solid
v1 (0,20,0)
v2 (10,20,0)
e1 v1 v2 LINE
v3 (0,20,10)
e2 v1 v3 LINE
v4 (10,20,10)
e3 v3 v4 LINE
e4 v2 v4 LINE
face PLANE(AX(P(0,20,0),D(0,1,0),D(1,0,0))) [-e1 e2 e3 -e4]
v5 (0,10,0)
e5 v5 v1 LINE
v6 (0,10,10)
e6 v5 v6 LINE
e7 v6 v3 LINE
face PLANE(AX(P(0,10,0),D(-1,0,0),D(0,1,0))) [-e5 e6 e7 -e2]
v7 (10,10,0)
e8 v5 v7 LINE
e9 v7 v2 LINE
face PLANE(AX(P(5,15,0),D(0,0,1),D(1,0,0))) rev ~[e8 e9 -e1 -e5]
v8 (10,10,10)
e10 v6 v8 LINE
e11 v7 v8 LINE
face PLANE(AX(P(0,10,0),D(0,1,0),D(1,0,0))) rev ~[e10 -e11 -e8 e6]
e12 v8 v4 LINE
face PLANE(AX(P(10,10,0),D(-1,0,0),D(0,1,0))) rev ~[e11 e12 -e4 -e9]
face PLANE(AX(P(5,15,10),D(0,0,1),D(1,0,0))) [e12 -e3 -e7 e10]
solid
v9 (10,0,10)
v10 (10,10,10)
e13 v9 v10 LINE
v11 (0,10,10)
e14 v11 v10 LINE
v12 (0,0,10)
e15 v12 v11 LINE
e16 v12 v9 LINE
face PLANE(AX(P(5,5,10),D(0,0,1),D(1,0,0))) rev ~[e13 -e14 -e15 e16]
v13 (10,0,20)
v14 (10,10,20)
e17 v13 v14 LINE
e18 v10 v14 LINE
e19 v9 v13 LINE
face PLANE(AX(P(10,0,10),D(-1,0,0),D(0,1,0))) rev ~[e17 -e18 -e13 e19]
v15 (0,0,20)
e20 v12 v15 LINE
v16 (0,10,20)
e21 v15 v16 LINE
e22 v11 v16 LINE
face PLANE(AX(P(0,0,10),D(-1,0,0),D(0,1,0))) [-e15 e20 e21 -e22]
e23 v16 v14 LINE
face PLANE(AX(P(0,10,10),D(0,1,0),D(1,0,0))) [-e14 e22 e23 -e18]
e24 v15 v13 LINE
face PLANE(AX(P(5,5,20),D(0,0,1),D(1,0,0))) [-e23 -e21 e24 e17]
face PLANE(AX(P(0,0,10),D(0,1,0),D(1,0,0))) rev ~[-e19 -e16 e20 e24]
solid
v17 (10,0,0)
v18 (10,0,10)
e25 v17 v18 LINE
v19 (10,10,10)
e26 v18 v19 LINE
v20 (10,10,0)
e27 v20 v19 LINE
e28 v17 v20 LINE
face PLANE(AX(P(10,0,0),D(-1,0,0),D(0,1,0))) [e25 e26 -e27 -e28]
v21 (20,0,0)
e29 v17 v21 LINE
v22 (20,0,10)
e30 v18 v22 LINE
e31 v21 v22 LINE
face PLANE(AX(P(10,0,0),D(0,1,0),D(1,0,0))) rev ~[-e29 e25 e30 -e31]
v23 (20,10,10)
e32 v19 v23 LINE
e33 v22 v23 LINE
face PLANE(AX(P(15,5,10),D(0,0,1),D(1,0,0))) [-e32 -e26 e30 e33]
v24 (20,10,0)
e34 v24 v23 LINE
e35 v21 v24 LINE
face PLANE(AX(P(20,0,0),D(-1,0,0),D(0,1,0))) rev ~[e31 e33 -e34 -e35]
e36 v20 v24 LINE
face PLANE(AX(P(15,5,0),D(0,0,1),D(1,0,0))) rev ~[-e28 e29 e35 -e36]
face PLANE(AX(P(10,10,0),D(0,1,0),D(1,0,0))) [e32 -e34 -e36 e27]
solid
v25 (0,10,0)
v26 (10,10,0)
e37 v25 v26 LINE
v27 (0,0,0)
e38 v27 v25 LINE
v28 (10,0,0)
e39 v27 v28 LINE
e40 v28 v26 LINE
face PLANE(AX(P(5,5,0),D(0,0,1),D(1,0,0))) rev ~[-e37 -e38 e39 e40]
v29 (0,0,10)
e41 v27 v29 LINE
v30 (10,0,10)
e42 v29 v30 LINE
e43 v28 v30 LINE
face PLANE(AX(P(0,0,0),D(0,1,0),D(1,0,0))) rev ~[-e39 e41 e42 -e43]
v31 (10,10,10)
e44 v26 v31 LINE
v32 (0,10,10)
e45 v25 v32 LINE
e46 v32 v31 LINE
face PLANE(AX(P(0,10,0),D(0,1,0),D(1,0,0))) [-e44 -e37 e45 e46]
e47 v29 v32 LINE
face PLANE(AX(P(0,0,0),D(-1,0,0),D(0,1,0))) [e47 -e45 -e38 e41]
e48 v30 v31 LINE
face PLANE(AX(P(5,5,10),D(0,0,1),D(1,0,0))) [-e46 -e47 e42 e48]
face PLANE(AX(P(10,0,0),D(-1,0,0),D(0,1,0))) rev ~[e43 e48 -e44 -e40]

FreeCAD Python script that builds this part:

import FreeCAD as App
import Part
import Sketcher
Q = App.Units.Quantity


def add_polygon(sketch, points):
    """Adds a closed chain of lines whose ends are joined by coincident constraints."""
    first, n = sketch.GeometryCount, len(points)
    for a, b in zip(points, points[1:] + points[:1]):
        sketch.addGeometry(Part.LineSegment(App.Vector(*a, 0), App.Vector(*b, 0)), False)
    for i in range(n):
        sketch.addConstraint(Sketcher.Constraint("Coincident", first + i, 2, first + (i + 1) % n, 1))

doc = App.newDocument("Part")
body = doc.addObject("PartDesign::Body", "Body")

sketch1 = body.newObject("Sketcher::SketchObject", "Sketch")
sketch1.AttachmentSupport = (doc.getObject("XY_Plane"), [""])
sketch1.MapMode = "FlatFace"
add_polygon(sketch1, [(0, 10), (0, 0), (10, 0), (10, 10)])
sketch1.addConstraint([
    Sketcher.Constraint("Vertical", 0),
    Sketcher.Constraint("Horizontal", 1),
    Sketcher.Constraint("Vertical", 2),
    Sketcher.Constraint("Horizontal", 3),
    Sketcher.Constraint("Coincident", 0, 2, -1, 1),
    Sketcher.Constraint("Equal", 3, 0),
    Sketcher.Constraint("DistanceX", 1, 1, 1, 2, Q("10 mm")),
])
pad1 = body.newObject("PartDesign::Pad", "Pad")
pad1.Profile = sketch1
pad1.Length = 10
body2 = doc.addObject("PartDesign::Body", "Body001")

sketch2 = body2.newObject("Sketcher::SketchObject", "Sketch001")
sketch2.AttachmentSupport = (doc.getObject("XY_Plane001"), [""])
sketch2.MapMode = "FlatFace"
add_polygon(sketch2, [(10, 10), (10, 0), (20, 0), (20, 10)])
sketch2.addConstraint([
    Sketcher.Constraint("Vertical", 0),
    Sketcher.Constraint("Horizontal", 1),
    Sketcher.Constraint("Vertical", 2),
    Sketcher.Constraint("Horizontal", 3),
    Sketcher.Constraint("PointOnObject", 0, 2, -1),
    Sketcher.Constraint("Equal", 3, 0),
    Sketcher.Constraint("DistanceX", 1, 1, 1, 2, Q("10 mm")),
    Sketcher.Constraint("DistanceX", -1, 1, 0, 2, Q("10 mm")),
])
pad2 = body2.newObject("PartDesign::Pad", "Pad001")
pad2.Profile = sketch2
pad2.Length = 10
body3 = doc.addObject("PartDesign::Body", "Body002")

sketch3 = body3.newObject("Sketcher::SketchObject", "Sketch002")
sketch3.AttachmentSupport = (doc.getObject("XY_Plane002"), [""])
sketch3.MapMode = "FlatFace"
add_polygon(sketch3, [(0, 20), (0, 10), (10, 10), (10, 20)])
sketch3.addConstraint([
    Sketcher.Constraint("Vertical", 0),
    Sketcher.Constraint("Horizontal", 1),
    Sketcher.Constraint("Vertical", 2),
    Sketcher.Constraint("Horizontal", 3),
    Sketcher.Constraint("PointOnObject", 0, 2, -2),
    Sketcher.Constraint("Equal", 3, 0),
    Sketcher.Constraint("DistanceX", 1, 1, 1, 2, Q("10 mm")),
    Sketcher.Constraint("DistanceY", -1, 1, 0, 2, Q("10 mm")),
])
pad3 = body3.newObject("PartDesign::Pad", "Pad002")
pad3.Profile = sketch3
pad3.Length = 10
body4 = doc.addObject("PartDesign::Body", "Body003")

sketch4 = body4.newObject("Sketcher::SketchObject", "Sketch003")
sketch4.AttachmentSupport = (doc.getObject("XY_Plane003"), [""])
sketch4.MapMode = "FlatFace"
sketch4.AttachmentOffset = App.Placement(App.Vector(0, 0, 10), App.Rotation())
add_polygon(sketch4, [(0, 10), (0, 0), (10, 0), (10, 10)])
sketch4.addConstraint([
    Sketcher.Constraint("Vertical", 0),
    Sketcher.Constraint("Horizontal", 1),
    Sketcher.Constraint("Vertical", 2),
    Sketcher.Constraint("Horizontal", 3),
    Sketcher.Constraint("Coincident", 0, 2, -1, 1),
    Sketcher.Constraint("Equal", 3, 0),
    Sketcher.Constraint("DistanceX", 1, 1, 1, 2, Q("10 mm")),
])
pad4 = body4.newObject("PartDesign::Pad", "Pad003")
pad4.Profile = sketch4
pad4.Length = 10

doc.recompute()
